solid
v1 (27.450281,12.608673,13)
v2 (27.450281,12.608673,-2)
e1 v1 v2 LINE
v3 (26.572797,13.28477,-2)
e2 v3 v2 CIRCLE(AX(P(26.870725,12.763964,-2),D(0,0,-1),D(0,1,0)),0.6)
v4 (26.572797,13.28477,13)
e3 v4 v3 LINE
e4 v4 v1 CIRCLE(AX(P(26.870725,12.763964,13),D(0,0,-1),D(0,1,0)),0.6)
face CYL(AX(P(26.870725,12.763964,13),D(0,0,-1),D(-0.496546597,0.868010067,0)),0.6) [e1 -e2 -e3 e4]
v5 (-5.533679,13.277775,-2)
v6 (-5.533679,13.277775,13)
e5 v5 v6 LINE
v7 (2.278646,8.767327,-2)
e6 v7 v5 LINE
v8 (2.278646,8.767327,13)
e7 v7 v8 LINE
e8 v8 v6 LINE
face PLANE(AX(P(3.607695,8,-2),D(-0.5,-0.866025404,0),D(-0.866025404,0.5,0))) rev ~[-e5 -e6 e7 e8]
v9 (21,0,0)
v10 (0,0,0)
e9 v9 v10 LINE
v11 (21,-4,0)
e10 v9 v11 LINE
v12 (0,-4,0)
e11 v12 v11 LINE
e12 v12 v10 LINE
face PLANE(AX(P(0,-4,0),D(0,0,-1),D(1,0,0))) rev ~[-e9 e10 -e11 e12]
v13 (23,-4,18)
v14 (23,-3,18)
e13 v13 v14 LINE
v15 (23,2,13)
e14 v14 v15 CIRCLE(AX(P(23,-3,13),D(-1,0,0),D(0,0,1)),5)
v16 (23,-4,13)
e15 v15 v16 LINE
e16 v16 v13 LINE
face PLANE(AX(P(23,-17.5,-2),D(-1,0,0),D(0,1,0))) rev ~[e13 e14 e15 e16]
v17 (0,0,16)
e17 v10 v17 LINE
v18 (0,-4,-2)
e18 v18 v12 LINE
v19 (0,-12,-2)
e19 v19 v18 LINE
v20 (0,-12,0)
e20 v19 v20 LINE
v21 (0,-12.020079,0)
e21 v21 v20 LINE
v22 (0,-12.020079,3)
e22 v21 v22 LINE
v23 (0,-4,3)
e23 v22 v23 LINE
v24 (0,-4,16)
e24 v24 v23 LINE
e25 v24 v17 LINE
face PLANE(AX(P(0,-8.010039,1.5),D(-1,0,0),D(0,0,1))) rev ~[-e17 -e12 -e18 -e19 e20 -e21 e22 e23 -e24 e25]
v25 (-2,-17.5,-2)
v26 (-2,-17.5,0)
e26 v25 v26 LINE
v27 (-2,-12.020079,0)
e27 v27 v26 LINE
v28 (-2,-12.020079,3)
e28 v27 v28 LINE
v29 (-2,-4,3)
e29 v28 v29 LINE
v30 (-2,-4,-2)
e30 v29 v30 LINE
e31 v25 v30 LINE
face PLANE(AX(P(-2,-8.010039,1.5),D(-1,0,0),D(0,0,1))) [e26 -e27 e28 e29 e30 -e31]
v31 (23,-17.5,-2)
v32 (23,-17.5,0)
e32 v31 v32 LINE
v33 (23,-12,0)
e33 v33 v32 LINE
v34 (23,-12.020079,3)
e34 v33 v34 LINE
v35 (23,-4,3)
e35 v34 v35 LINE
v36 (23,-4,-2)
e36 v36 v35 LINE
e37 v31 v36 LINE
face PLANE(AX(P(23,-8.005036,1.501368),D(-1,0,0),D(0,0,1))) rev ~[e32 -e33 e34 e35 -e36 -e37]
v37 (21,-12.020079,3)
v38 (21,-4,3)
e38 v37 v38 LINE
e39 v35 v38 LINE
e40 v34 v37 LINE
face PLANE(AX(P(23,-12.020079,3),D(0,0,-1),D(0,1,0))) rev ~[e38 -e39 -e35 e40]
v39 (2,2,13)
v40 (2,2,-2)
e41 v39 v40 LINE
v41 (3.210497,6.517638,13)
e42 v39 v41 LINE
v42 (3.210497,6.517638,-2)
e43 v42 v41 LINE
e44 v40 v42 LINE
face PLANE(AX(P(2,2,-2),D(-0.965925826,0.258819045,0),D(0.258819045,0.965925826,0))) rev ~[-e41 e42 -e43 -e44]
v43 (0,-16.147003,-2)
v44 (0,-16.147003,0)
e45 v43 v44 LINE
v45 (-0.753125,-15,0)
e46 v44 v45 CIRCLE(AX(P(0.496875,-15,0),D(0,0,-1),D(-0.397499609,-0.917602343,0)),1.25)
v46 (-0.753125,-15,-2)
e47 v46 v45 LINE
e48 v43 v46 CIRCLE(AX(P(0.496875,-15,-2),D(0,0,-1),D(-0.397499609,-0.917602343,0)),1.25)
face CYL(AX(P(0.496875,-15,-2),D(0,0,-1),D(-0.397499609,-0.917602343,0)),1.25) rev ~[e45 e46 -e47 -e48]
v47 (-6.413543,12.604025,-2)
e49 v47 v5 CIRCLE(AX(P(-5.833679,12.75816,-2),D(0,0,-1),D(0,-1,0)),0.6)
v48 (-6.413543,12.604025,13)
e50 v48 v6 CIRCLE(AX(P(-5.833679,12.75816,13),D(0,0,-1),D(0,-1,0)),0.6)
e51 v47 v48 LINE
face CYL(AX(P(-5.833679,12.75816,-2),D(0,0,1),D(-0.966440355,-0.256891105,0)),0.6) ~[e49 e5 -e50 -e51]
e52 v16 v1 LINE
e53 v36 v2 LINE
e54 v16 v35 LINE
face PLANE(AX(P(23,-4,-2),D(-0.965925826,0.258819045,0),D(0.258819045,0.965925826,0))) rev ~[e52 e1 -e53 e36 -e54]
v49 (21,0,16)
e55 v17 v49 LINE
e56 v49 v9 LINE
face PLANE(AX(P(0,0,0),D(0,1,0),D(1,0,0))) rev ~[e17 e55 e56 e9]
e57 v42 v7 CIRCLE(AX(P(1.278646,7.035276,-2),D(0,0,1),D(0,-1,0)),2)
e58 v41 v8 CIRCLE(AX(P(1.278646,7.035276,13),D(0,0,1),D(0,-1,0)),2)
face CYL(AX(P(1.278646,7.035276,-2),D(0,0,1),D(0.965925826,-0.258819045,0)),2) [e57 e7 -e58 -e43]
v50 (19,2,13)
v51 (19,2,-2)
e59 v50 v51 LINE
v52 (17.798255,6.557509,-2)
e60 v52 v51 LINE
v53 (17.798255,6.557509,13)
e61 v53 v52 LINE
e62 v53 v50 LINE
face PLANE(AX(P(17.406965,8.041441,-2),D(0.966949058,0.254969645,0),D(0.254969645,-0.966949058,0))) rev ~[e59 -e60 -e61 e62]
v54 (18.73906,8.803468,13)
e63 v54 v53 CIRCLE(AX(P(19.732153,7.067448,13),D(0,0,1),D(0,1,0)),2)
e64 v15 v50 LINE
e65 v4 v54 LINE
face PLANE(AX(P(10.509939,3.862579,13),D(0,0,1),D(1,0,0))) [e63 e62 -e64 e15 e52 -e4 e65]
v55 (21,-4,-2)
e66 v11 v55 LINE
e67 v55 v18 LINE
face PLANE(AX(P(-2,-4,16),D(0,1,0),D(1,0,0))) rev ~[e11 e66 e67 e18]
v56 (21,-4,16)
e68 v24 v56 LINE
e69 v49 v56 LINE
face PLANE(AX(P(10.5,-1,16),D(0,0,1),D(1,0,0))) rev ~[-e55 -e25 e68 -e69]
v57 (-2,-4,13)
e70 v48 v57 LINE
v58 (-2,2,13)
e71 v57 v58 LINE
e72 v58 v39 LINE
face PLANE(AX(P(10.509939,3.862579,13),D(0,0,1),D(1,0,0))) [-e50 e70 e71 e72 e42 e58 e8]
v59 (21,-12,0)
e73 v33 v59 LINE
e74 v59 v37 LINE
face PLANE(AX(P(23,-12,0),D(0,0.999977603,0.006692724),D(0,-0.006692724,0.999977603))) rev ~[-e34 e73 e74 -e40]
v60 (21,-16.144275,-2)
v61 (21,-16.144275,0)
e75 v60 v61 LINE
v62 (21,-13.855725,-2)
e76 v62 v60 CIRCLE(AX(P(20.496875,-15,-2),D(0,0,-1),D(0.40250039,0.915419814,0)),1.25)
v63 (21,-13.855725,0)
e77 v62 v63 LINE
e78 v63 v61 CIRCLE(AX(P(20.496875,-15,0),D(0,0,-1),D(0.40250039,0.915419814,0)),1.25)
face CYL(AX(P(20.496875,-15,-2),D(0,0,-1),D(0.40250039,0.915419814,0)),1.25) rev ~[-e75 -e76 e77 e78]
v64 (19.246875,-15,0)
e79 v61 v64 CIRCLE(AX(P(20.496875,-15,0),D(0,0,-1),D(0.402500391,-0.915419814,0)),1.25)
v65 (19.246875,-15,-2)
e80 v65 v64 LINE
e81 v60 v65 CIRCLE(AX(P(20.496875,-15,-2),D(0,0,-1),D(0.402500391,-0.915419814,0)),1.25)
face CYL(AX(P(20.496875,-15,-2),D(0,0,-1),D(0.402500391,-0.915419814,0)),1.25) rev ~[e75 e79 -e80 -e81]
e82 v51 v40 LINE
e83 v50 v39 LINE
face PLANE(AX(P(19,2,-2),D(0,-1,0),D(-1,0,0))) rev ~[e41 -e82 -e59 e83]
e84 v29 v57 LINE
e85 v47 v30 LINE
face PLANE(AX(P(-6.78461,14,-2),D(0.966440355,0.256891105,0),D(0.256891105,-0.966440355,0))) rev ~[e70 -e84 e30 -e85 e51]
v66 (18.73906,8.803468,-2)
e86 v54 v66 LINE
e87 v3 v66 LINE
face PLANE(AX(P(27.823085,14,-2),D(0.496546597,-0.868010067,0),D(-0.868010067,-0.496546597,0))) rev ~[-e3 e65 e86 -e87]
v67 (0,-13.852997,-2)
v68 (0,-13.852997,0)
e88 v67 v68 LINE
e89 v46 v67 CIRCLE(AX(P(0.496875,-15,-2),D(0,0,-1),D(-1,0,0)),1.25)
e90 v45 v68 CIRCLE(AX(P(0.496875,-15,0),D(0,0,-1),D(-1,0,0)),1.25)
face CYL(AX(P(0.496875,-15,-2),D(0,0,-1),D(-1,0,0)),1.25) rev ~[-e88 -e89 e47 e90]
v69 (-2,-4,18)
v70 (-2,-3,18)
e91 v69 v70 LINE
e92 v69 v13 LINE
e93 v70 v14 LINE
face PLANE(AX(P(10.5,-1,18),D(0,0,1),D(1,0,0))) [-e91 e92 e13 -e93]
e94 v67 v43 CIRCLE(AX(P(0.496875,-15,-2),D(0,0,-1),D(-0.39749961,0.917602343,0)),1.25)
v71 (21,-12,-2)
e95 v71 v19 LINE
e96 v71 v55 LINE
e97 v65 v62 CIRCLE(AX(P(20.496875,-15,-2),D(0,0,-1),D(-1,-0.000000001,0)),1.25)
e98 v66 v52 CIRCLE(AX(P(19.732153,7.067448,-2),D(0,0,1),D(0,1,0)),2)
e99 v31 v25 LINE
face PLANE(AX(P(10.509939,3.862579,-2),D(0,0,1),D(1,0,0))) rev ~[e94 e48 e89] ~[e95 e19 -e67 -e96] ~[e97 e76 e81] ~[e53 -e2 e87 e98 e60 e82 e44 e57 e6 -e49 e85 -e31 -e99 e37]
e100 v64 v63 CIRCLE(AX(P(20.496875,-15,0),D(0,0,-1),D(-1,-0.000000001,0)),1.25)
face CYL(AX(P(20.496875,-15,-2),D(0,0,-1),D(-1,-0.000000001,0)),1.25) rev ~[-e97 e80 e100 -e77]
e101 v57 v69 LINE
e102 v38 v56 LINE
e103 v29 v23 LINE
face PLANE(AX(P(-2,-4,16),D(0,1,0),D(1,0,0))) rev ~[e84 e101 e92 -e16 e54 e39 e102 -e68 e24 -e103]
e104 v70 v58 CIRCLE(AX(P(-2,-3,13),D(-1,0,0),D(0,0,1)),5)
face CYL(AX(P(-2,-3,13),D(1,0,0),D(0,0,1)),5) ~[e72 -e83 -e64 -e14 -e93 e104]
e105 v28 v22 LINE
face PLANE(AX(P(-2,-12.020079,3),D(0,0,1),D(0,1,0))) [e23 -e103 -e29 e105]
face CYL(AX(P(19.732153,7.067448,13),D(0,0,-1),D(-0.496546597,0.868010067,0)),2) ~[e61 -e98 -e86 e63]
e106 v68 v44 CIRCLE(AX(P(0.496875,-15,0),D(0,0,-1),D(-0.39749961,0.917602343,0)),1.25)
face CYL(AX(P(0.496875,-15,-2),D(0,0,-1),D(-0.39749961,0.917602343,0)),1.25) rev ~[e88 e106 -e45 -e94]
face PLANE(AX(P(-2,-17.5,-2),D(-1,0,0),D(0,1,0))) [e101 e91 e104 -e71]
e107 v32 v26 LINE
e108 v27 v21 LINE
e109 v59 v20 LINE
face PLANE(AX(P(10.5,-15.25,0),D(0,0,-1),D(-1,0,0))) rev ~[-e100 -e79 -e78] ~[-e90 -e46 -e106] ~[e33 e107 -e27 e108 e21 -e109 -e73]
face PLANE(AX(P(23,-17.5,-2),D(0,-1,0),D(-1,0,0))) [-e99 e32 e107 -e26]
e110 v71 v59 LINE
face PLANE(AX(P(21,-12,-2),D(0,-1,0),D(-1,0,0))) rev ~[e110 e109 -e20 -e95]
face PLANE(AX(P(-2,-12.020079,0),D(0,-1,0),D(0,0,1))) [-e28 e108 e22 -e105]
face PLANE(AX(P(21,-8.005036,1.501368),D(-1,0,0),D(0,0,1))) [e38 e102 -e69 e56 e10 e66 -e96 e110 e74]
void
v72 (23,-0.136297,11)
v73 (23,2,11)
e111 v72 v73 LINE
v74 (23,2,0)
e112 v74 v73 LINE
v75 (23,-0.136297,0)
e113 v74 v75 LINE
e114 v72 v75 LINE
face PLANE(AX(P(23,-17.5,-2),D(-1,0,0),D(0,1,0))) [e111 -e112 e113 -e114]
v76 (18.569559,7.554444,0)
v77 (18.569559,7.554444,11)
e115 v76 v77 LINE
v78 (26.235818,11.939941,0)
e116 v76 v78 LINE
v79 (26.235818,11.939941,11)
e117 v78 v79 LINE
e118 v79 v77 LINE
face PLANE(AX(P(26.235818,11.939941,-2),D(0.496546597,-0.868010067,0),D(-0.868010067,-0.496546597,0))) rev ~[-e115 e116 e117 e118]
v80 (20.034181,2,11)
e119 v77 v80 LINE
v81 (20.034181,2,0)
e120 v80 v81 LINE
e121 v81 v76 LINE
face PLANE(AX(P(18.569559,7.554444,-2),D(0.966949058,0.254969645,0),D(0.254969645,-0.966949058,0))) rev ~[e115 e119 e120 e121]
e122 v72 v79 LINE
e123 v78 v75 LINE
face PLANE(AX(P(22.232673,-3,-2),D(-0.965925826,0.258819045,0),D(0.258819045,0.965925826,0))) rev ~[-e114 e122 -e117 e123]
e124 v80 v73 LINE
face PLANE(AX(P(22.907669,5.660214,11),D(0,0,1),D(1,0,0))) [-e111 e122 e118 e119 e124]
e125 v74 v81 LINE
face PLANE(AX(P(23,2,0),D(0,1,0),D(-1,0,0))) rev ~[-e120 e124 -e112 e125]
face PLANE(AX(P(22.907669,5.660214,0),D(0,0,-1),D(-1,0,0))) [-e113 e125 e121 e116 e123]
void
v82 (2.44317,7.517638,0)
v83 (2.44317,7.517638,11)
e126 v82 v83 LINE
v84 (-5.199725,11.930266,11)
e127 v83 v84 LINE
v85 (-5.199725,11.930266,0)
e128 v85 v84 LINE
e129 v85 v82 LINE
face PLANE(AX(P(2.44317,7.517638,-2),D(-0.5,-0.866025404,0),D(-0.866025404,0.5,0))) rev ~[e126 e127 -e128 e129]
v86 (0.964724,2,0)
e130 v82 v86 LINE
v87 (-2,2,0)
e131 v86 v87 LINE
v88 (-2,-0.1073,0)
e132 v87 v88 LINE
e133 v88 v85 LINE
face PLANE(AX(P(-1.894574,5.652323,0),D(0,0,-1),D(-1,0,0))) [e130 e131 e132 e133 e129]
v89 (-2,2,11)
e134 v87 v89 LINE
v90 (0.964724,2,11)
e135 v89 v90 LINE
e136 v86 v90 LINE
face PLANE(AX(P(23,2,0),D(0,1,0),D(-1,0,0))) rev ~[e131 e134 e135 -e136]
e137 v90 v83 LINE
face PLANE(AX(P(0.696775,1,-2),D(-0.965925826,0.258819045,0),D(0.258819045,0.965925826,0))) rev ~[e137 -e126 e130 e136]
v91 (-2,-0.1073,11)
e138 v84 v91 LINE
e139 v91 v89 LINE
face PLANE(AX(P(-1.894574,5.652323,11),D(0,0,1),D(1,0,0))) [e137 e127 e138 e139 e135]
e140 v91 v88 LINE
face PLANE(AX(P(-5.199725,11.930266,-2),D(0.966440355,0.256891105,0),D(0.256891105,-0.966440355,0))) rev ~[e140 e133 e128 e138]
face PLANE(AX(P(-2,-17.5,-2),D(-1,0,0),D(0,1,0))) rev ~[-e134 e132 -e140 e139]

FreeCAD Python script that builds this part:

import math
import FreeCAD as App
import Part
import Sketcher

V = App.Vector
Q = App.Units.Quantity


def edges_at(feature, points):
    """Names of the edges that pass closest to the given points."""
    edges = feature.Shape.Edges
    near = lambda p: min(range(len(edges)), key=lambda i: edges[i].distToShape(Part.Vertex(*p))[0])
    return sorted({f"Edge{near(p) + 1}" for p in points})

doc = App.newDocument("Part")
body = doc.addObject("PartDesign::Body", "Body")

# Sketch on XY plane
sketch1 = doc.addObject("Sketcher::SketchObject", "Sketch")
body.addObject(sketch1)
sketch1.AttachmentSupport = (doc.XY_Plane, [""])
sketch1.MapMode = "FlatFace"
sketch1.addGeometry(Part.LineSegment(V(23, 2, 0), V(-2, 2, 0)), False)
sketch1.addGeometry(Part.LineSegment(V(-2, 2, 0), V(-2, -4, 0)), False)
sketch1.addGeometry(Part.LineSegment(V(-2, -4, 0), V(0, -4, 0)), False)
sketch1.addGeometry(Part.LineSegment(V(0, -4, 0), V(0, 0, 0)), False)
sketch1.addGeometry(Part.LineSegment(V(0, 0, 0), V(21, 0, 0)), False)
sketch1.addGeometry(Part.LineSegment(V(21, 0, 0), V(21, -4, 0)), False)
sketch1.addGeometry(Part.LineSegment(V(21, -4, 0), V(23, -4, 0)), False)
sketch1.addGeometry(Part.LineSegment(V(23, -4, 0), V(23, 2, 0)), False)
sketch1.addConstraint(Sketcher.Constraint("Coincident", 0, 2, 1, 1))
sketch1.addConstraint(Sketcher.Constraint("Coincident", 1, 2, 2, 1))
sketch1.addConstraint(Sketcher.Constraint("Coincident", 2, 2, 3, 1))
sketch1.addConstraint(Sketcher.Constraint("Coincident", 3, 2, 4, 1))
sketch1.addConstraint(Sketcher.Constraint("Coincident", 4, 2, 5, 1))
sketch1.addConstraint(Sketcher.Constraint("Coincident", 5, 2, 6, 1))
sketch1.addConstraint(Sketcher.Constraint("Coincident", 6, 2, 7, 1))
sketch1.addConstraint(Sketcher.Constraint("Coincident", 7, 2, 0, 1))
sketch1.addConstraint(Sketcher.Constraint("Horizontal", 0))
sketch1.addConstraint(Sketcher.Constraint("Vertical", 1))
sketch1.addConstraint(Sketcher.Constraint("Horizontal", 2))
sketch1.addConstraint(Sketcher.Constraint("Vertical", 3))
sketch1.addConstraint(Sketcher.Constraint("Horizontal", 4))
sketch1.addConstraint(Sketcher.Constraint("Vertical", 5))
sketch1.addConstraint(Sketcher.Constraint("Horizontal", 6))
sketch1.addConstraint(Sketcher.Constraint("Vertical", 7))
sketch1.addConstraint(Sketcher.Constraint("Coincident", 3, 2, -1, 1))
sketch1.addConstraint(Sketcher.Constraint("Horizontal", 2, 2, 5, 2))
sketch1.addConstraint(Sketcher.Constraint("Equal", 2, 6))
sketch1.addConstraint(Sketcher.Constraint("DistanceX", 0, 2, 0, 1, 25.0))
sketch1.addConstraint(Sketcher.Constraint("DistanceX", 2, 1, 2, 2, 2.0))
sketch1.addConstraint(Sketcher.Constraint("DistanceY", 1, 2, 1, 1, 6.0))
sketch1.addConstraint(Sketcher.Constraint("DistanceY", 3, 1, 3, 2, 4.0))
pad1 = doc.addObject("PartDesign::Pad", "Pad")
body.addObject(pad1)
pad1.Profile = sketch1
pad1.Length = 16

# Sketch on XY plane
sketch2 = doc.addObject("Sketcher::SketchObject", "Sketch001")
body.addObject(sketch2)
sketch2.AttachmentSupport = (doc.XY_Plane, [""])
sketch2.MapMode = "FlatFace"
sketch2.AttachmentOffset = App.Placement(V(0, 0, 16), App.Rotation())
sketch2.addGeometry(Part.LineSegment(V(-2, 2, 0), V(-2, -4, 0)), False)
sketch2.addGeometry(Part.LineSegment(V(-2, -4, 0), V(23, -4, 0)), False)
sketch2.addGeometry(Part.LineSegment(V(23, -4, 0), V(23, 2, 0)), False)
sketch2.addGeometry(Part.LineSegment(V(23, 2, 0), V(-2, 2, 0)), False)
sketch2.addConstraint(Sketcher.Constraint("Coincident", 0, 2, 1, 1))
sketch2.addConstraint(Sketcher.Constraint("Coincident", 1, 2, 2, 1))
sketch2.addConstraint(Sketcher.Constraint("Coincident", 2, 2, 3, 1))
sketch2.addConstraint(Sketcher.Constraint("Coincident", 3, 2, 0, 1))
sketch2.addConstraint(Sketcher.Constraint("Vertical", 0))
sketch2.addConstraint(Sketcher.Constraint("Horizontal", 1))
sketch2.addConstraint(Sketcher.Constraint("Vertical", 2))
sketch2.addConstraint(Sketcher.Constraint("Horizontal", 3))
sketch2.addConstraint(Sketcher.Constraint("DistanceX", 1, 1, 1, 2, 25.0))
sketch2.addConstraint(Sketcher.Constraint("DistanceY", 0, 2, 0, 1, 6.0))
sketch2.addConstraint(Sketcher.Constraint("DistanceX", 0, 2, -1, 1, 2.0))
sketch2.addConstraint(Sketcher.Constraint("DistanceY", 0, 2, -1, 1, 4.0))
pad2 = doc.addObject("PartDesign::Pad", "Pad001")
body.addObject(pad2)
pad2.Profile = sketch2
pad2.Length = 2

# Sketch on XY plane
sketch3 = doc.addObject("Sketcher::SketchObject", "Sketch002")
body.addObject(sketch3)
sketch3.AttachmentSupport = (doc.XY_Plane, [""])
sketch3.MapMode = "FlatFace"
sketch3.addGeometry(Part.LineSegment(V(23, 2, 0), V(23, -13, 0)), False)
sketch3.addGeometry(Part.LineSegment(V(23, -13, 0), V(-2, -13, 0)), False)
sketch3.addGeometry(Part.LineSegment(V(-2, -13, 0), V(-2, 2, 0)), False)
sketch3.addGeometry(Part.LineSegment(V(-2, 2, 0), V(23, 2, 0)), False)
sketch3.addConstraint(Sketcher.Constraint("Coincident", 0, 2, 1, 1))
sketch3.addConstraint(Sketcher.Constraint("Coincident", 1, 2, 2, 1))
sketch3.addConstraint(Sketcher.Constraint("Coincident", 2, 2, 3, 1))
sketch3.addConstraint(Sketcher.Constraint("Coincident", 3, 2, 0, 1))
sketch3.addConstraint(Sketcher.Constraint("Vertical", 0))
sketch3.addConstraint(Sketcher.Constraint("Horizontal", 1))
sketch3.addConstraint(Sketcher.Constraint("Vertical", 2))
sketch3.addConstraint(Sketcher.Constraint("Horizontal", 3))
sketch3.addConstraint(Sketcher.Constraint("DistanceX", 1, 2, 1, 1, 25.0))
sketch3.addConstraint(Sketcher.Constraint("DistanceY", 0, 2, 0, 1, 15.0))
sketch3.addConstraint(Sketcher.Constraint("DistanceX", -1, 1, 0, 2, 23.0))
sketch3.addConstraint(Sketcher.Constraint("DistanceY", 0, 2, -1, 1, 13.0))
pad3 = doc.addObject("PartDesign::Pad", "Pad002")
body.addObject(pad3)
pad3.Profile = sketch3
pad3.Length = 2
pad3.Reversed = True

# Sketch on XY plane
sketch4 = doc.addObject("Sketcher::SketchObject", "Sketch003")
body.addObject(sketch4)
sketch4.AttachmentSupport = (doc.XY_Plane, [""])
sketch4.MapMode = "FlatFace"
sketch4.AttachmentOffset = App.Placement(V(0, 0, -2), App.Rotation())
sketch4.addGeometry(Part.LineSegment(V(21, -4, 0), V(21, -12, 0)), False)
sketch4.addGeometry(Part.LineSegment(V(21, -12, 0), V(0, -12, 0)), False)
sketch4.addGeometry(Part.LineSegment(V(0, -12, 0), V(0, -4, 0)), False)
sketch4.addGeometry(Part.LineSegment(V(0, -4, 0), V(21, -4, 0)), False)
sketch4.addConstraint(Sketcher.Constraint("Coincident", 0, 2, 1, 1))
sketch4.addConstraint(Sketcher.Constraint("Coincident", 1, 2, 2, 1))
sketch4.addConstraint(Sketcher.Constraint("Coincident", 2, 2, 3, 1))
sketch4.addConstraint(Sketcher.Constraint("Coincident", 3, 2, 0, 1))
sketch4.addConstraint(Sketcher.Constraint("Vertical", 0))
sketch4.addConstraint(Sketcher.Constraint("Horizontal", 1))
sketch4.addConstraint(Sketcher.Constraint("Vertical", 2))
sketch4.addConstraint(Sketcher.Constraint("Horizontal", 3))
sketch4.addConstraint(Sketcher.Constraint("PointOnObject", 1, 2, -2))
sketch4.addConstraint(Sketcher.Constraint("DistanceX", 1, 2, 1, 1, 21.0))
sketch4.addConstraint(Sketcher.Constraint("DistanceY", 0, 2, 0, 1, 8.0))
sketch4.addConstraint(Sketcher.Constraint("DistanceY", 0, 2, -1, 1, 12.0))
pocket1 = doc.addObject("PartDesign::Pocket", "Pocket")
body.addObject(pocket1)
pocket1.Profile = sketch4
pocket1.Length = 2
pocket1.Reversed = True

# Sketch on XY plane
sketch5 = doc.addObject("Sketcher::SketchObject", "Sketch004")
body.addObject(sketch5)
sketch5.AttachmentSupport = (doc.XY_Plane, [""])
sketch5.MapMode = "FlatFace"
sketch5.AttachmentOffset = App.Placement(V(0, 0, -2), App.Rotation())
sketch5.addGeometry(Part.LineSegment(V(23, -13, 0), V(23, -17.5, 0)), False)
sketch5.addGeometry(Part.LineSegment(V(23, -17.5, 0), V(-2, -17.5, 0)), False)
sketch5.addGeometry(Part.LineSegment(V(-2, -17.5, 0), V(-2, -13, 0)), False)
sketch5.addGeometry(Part.LineSegment(V(-2, -13, 0), V(23, -13, 0)), False)
sketch5.addConstraint(Sketcher.Constraint("Coincident", 0, 2, 1, 1))
sketch5.addConstraint(Sketcher.Constraint("Coincident", 1, 2, 2, 1))
sketch5.addConstraint(Sketcher.Constraint("Coincident", 2, 2, 3, 1))
sketch5.addConstraint(Sketcher.Constraint("Coincident", 3, 2, 0, 1))
sketch5.addConstraint(Sketcher.Constraint("Vertical", 0))
sketch5.addConstraint(Sketcher.Constraint("Horizontal", 1))
sketch5.addConstraint(Sketcher.Constraint("Vertical", 2))
sketch5.addConstraint(Sketcher.Constraint("Horizontal", 3))
sketch5.addConstraint(Sketcher.Constraint("DistanceX", 1, 2, 1, 1, 25.0))
sketch5.addConstraint(Sketcher.Constraint("DistanceY", 0, 2, 0, 1, 4.5))
sketch5.addConstraint(Sketcher.Constraint("DistanceX", -1, 1, 0, 2, 23.0))
sketch5.addConstraint(Sketcher.Constraint("DistanceY", 2, 2, -1, 1, 13.0))
pad4 = doc.addObject("PartDesign::Pad", "Pad003")
body.addObject(pad4)
pad4.Profile = sketch5
pad4.Length = 2

# Sketch on XY plane
sketch6 = doc.addObject("Sketcher::SketchObject", "Sketch005")
body.addObject(sketch6)
sketch6.AttachmentSupport = (doc.XY_Plane, [""])
sketch6.MapMode = "FlatFace"
sketch6.AttachmentOffset = App.Placement(V(0, 0, -2), App.Rotation())
sketch6.addGeometry(Part.ArcOfCircle(Part.Circle(V(20.5, -15, 0), V(0, 0, 1), 1.2), math.radians(66), math.radians(180)), False)
sketch6.addGeometry(Part.ArcOfCircle(Part.Circle(V(20.5, -15, 0), V(0, 0, 1), 1.2), math.radians(-66), math.radians(66)), False)
sketch6.addGeometry(Part.ArcOfCircle(Part.Circle(V(20.5, -15, 0), V(0, 0, 1), 1.2), math.radians(180), math.radians(294)), False)
sketch6.addGeometry(Part.ArcOfCircle(Part.Circle(V(0.5, -15, 0), V(0, 0, 1), 1.2), math.radians(113), math.radians(180)), False)
sketch6.addGeometry(Part.ArcOfCircle(Part.Circle(V(0.5, -15, 0), V(0, 0, 1), 1.2), math.radians(-113), math.radians(113)), False)
sketch6.addGeometry(Part.ArcOfCircle(Part.Circle(V(0.5, -15, 0), V(0, 0, 1), 1.2), math.radians(180), math.radians(247)), False)
sketch6.addConstraint(Sketcher.Constraint("Tangent", 0, 1, 1, 2))
sketch6.addConstraint(Sketcher.Constraint("Tangent", 1, 1, 2, 2))
sketch6.addConstraint(Sketcher.Constraint("Tangent", 2, 1, 0, 2))
sketch6.addConstraint(Sketcher.Constraint("Tangent", 3, 1, 4, 2))
sketch6.addConstraint(Sketcher.Constraint("Tangent", 4, 1, 5, 2))
sketch6.addConstraint(Sketcher.Constraint("Tangent", 5, 1, 3, 2))
sketch6.addConstraint(Sketcher.Constraint("Equal", 2, 3))
sketch6.addConstraint(Sketcher.Constraint("PointOnObject", 3, 1, -2))
sketch6.addConstraint(Sketcher.Constraint("PointOnObject", 4, 1, -2))
sketch6.addConstraint(Sketcher.Constraint("Horizontal", 2, 3, 3, 3))
sketch6.addConstraint(Sketcher.Constraint("Horizontal", 5, 3, 2, 1))
sketch6.addConstraint(Sketcher.Constraint("Horizontal", 2, 1, 5, 1))
sketch6.addConstraint(Sketcher.Constraint("Vertical", 0, 1, 1, 1))
sketch6.addConstraint(Sketcher.Constraint("Radius", 0, 1.25))
sketch6.addConstraint(Sketcher.Constraint("DistanceY", 0, 3, -1, 1, 15.0))
sketch6.addConstraint(Sketcher.Constraint("DistanceX", -1, 1, 0, 1, 21.0))
sketch6.addConstraint(Sketcher.Constraint("DistanceX", 3, 3, 0, 3, 20.0))
sketch6.addConstraint(Sketcher.Constraint("DistanceY", 1, 1, 0, 1, 2.28855))
pocket2 = doc.addObject("PartDesign::Pocket", "Pocket001")
body.addObject(pocket2)
pocket2.Profile = sketch6
pocket2.Length = 3
pocket2.Reversed = True
doc.recompute()

fillet = doc.addObject("PartDesign::Fillet", "Fillet")
body.addObject(fillet)
fillet.Base = (pocket2, edges_at(pocket2, [(10.5, 2, 18)]))
fillet.Radius = 5

# Sketch on XY plane
sketch7 = doc.addObject("Sketcher::SketchObject", "Sketch006")
body.addObject(sketch7)
sketch7.AttachmentSupport = (doc.XY_Plane, [""])
sketch7.MapMode = "FlatFace"
sketch7.AttachmentOffset = App.Placement(V(0, 0, -2), App.Rotation())
sketch7.addGeometry(Part.LineSegment(V(23, -4, 0), V(-2, -4, 0)), False)
sketch7.addGeometry(Part.LineSegment(V(-2, -4, 0), V(-7, 14, 0)), False)
sketch7.addGeometry(Part.LineSegment(V(-7, 14, 0), V(4, 8, 0)), False)
sketch7.addGeometry(Part.LineSegment(V(4, 8, 0), V(2, 2, 0)), False)
sketch7.addGeometry(Part.LineSegment(V(2, 2, 0), V(19, 2, 0)), False)
sketch7.addGeometry(Part.LineSegment(V(19, 2, 0), V(17, 8, 0)), False)
sketch7.addGeometry(Part.LineSegment(V(17, 8, 0), V(28, 14, 0)), False)
sketch7.addGeometry(Part.LineSegment(V(28, 14, 0), V(23, -4, 0)), False)
sketch7.addGeometry(Part.LineSegment(V(22, -3, 0), V(26, 12, 0)), False)
sketch7.addGeometry(Part.LineSegment(V(26, 12, 0), V(19, 8, 0)), False)
sketch7.addGeometry(Part.LineSegment(V(19, 8, 0), V(20, 1, 0)), False)
sketch7.addGeometry(Part.LineSegment(V(20, 1, 0), V(1, 1, 0)), False)
sketch7.addGeometry(Part.LineSegment(V(1, 1, 0), V(2, 8, 0)), False)
sketch7.addGeometry(Part.LineSegment(V(2, 8, 0), V(-5, 12, 0)), False)
sketch7.addGeometry(Part.LineSegment(V(-5, 12, 0), V(-1, -3, 0)), False)
sketch7.addGeometry(Part.LineSegment(V(-1, -3, 0), V(22, -3, 0)), False)
sketch7.addConstraint(Sketcher.Constraint("Coincident", 0, 2, 1, 1))
sketch7.addConstraint(Sketcher.Constraint("Coincident", 1, 2, 2, 1))
sketch7.addConstraint(Sketcher.Constraint("Coincident", 2, 2, 3, 1))
sketch7.addConstraint(Sketcher.Constraint("Coincident", 3, 2, 4, 1))
sketch7.addConstraint(Sketcher.Constraint("Coincident", 4, 2, 5, 1))
sketch7.addConstraint(Sketcher.Constraint("Coincident", 5, 2, 6, 1))
sketch7.addConstraint(Sketcher.Constraint("Coincident", 6, 2, 7, 1))
sketch7.addConstraint(Sketcher.Constraint("Coincident", 7, 2, 0, 1))
sketch7.addConstraint(Sketcher.Constraint("Coincident", 8, 2, 9, 1))
sketch7.addConstraint(Sketcher.Constraint("Coincident", 9, 2, 10, 1))
sketch7.addConstraint(Sketcher.Constraint("Coincident", 10, 2, 11, 1))
sketch7.addConstraint(Sketcher.Constraint("Coincident", 11, 2, 12, 1))
sketch7.addConstraint(Sketcher.Constraint("Coincident", 12, 2, 13, 1))
sketch7.addConstraint(Sketcher.Constraint("Coincident", 13, 2, 14, 1))
sketch7.addConstraint(Sketcher.Constraint("Coincident", 14, 2, 15, 1))
sketch7.addConstraint(Sketcher.Constraint("Coincident", 15, 2, 8, 1))
sketch7.addConstraint(Sketcher.Constraint("Horizontal", 0))
sketch7.addConstraint(Sketcher.Constraint("Horizontal", 4))
sketch7.addConstraint(Sketcher.Constraint("Horizontal", 11))
sketch7.addConstraint(Sketcher.Constraint("Horizontal", 15))
sketch7.addConstraint(Sketcher.Constraint("Parallel", 3, 7))
sketch7.addConstraint(Sketcher.Constraint("Parallel", 7, 8))
sketch7.addConstraint(Sketcher.Constraint("Parallel", 6, 9))
sketch7.addConstraint(Sketcher.Constraint("Parallel", 5, 10))
sketch7.addConstraint(Sketcher.Constraint("Parallel", 8, 12))
sketch7.addConstraint(Sketcher.Constraint("Parallel", 2, 13))
sketch7.addConstraint(Sketcher.Constraint("Parallel", 1, 14))
sketch7.addConstraint(Sketcher.Constraint("Horizontal", 1, 2, 6, 2))
sketch7.addConstraint(Sketcher.Constraint("Equal", 2, 6))
sketch7.addConstraint(Sketcher.Constraint("DistanceX", 0, 2, 0, 1, 25.0))
sketch7.addConstraint(Sketcher.Constraint("DistanceX", 4, 1, 4, 2, 17.0))
sketch7.addConstraint(Sketcher.Constraint("Angle", 2, Q("-30 deg")))
sketch7.addConstraint(Sketcher.Constraint("Angle", 3, Q("-105 deg")))
sketch7.addConstraint(Sketcher.Constraint("Distance", 2, 12.0))
sketch7.addConstraint(Sketcher.Constraint("DistanceX", 0, 2, -1, 1, 2.0))
sketch7.addConstraint(Sketcher.Constraint("DistanceY", 0, 2, -1, 1, 4.0))
sketch7.addConstraint(Sketcher.Constraint("DistanceY", -1, 1, 1, 2, 14.0))
sketch7.addConstraint(Sketcher.Constraint("DistanceX", -1, 1, 3, 2, 2.0))
sketch7.addConstraint(Sketcher.Constraint("DistanceY", -1, 1, 3, 2, 2.0))
sketch7.addConstraint(Sketcher.Constraint("DistanceY", -1, 1, 10, 2, 1.0))
sketch7.addConstraint(Sketcher.Constraint("DistanceY", 14, 2, -1, 1, 3.0))
sketch7.addConstraint(Sketcher.Constraint("DistanceX", 11, 2, 11, 1, 19.601091))
sketch7.addConstraint(Sketcher.Constraint("DistanceX", 15, 1, 15, 2, 23.46376))
sketch7.addConstraint(Sketcher.Constraint("DistanceY", 5, 2, 8, 2, 3.8985))
sketch7.addConstraint(Sketcher.Constraint("DistanceX", 5, 2, 10, 2, 2.890901))
sketch7.addConstraint(Sketcher.Constraint("DistanceX", 13, 2, 11, 2, 5.8965))
sketch7.addConstraint(Sketcher.Constraint("Distance", 5, 6.247941))
sketch7.addConstraint(Sketcher.Constraint("Distance", 10, 6.77848))
pad5 = doc.addObject("PartDesign::Pad", "Pad004")
body.addObject(pad5)
pad5.Profile = sketch7
pad5.Length = 15

# Sketch on XY plane
sketch8 = doc.addObject("Sketcher::SketchObject", "Sketch007")
body.addObject(sketch8)
sketch8.AttachmentSupport = (doc.XY_Plane, [""])
sketch8.MapMode = "FlatFace"
sketch8.AttachmentOffset = App.Placement(V(0, 0, -2), App.Rotation())
sketch8.addGeometry(Part.LineSegment(V(28, 14, 0), V(23, -4, 0)), False)
sketch8.addGeometry(Part.LineSegment(V(23, -4, 0), V(19, 2, 0)), False)
sketch8.addGeometry(Part.LineSegment(V(19, 2, 0), V(17, 8, 0)), False)
sketch8.addGeometry(Part.LineSegment(V(17, 8, 0), V(28, 14, 0)), False)
sketch8.addGeometry(Part.LineSegment(V(2, 2, 0), V(-2, -4, 0)), False)
sketch8.addGeometry(Part.LineSegment(V(-2, -4, 0), V(-7, 14, 0)), False)
sketch8.addGeometry(Part.LineSegment(V(-7, 14, 0), V(4, 8, 0)), False)
sketch8.addGeometry(Part.LineSegment(V(4, 8, 0), V(2, 2, 0)), False)
sketch8.addConstraint(Sketcher.Constraint("Coincident", 0, 2, 1, 1))
sketch8.addConstraint(Sketcher.Constraint("Coincident", 1, 2, 2, 1))
sketch8.addConstraint(Sketcher.Constraint("Coincident", 2, 2, 3, 1))
sketch8.addConstraint(Sketcher.Constraint("Coincident", 3, 2, 0, 1))
sketch8.addConstraint(Sketcher.Constraint("Coincident", 4, 2, 5, 1))
sketch8.addConstraint(Sketcher.Constraint("Coincident", 5, 2, 6, 1))
sketch8.addConstraint(Sketcher.Constraint("Coincident", 6, 2, 7, 1))
sketch8.addConstraint(Sketcher.Constraint("Coincident", 7, 2, 4, 1))
sketch8.addConstraint(Sketcher.Constraint("Parallel", 0, 7))
sketch8.addConstraint(Sketcher.Constraint("Horizontal", 0, 2, 4, 2))
sketch8.addConstraint(Sketcher.Constraint("Horizontal", 3, 2, 5, 2))
sketch8.addConstraint(Sketcher.Constraint("Horizontal", 1, 2, 7, 2))
sketch8.addConstraint(Sketcher.Constraint("Equal", 1, 4))
sketch8.addConstraint(Sketcher.Constraint("Equal", 3, 6))
sketch8.addConstraint(Sketcher.Constraint("Angle", 0, Q("-105 deg")))
sketch8.addConstraint(Sketcher.Constraint("Angle", 6, Q("-30 deg")))
sketch8.addConstraint(Sketcher.Constraint("Distance", 3, 12.0))
sketch8.addConstraint(Sketcher.Constraint("DistanceX", -1, 1, 0, 2, 23.0))
sketch8.addConstraint(Sketcher.Constraint("DistanceY", 0, 2, -1, 1, 4.0))
sketch8.addConstraint(Sketcher.Constraint("DistanceX", -1, 1, 1, 2, 19.0))
sketch8.addConstraint(Sketcher.Constraint("DistanceY", -1, 1, 1, 2, 2.0))
sketch8.addConstraint(Sketcher.Constraint("DistanceY", -1, 1, 3, 2, 14.0))
sketch8.addConstraint(Sketcher.Constraint("DistanceX", 4, 2, -1, 1, 2.0))
sketch8.addConstraint(Sketcher.Constraint("Distance", 2, 6.247941))
pad6 = doc.addObject("PartDesign::Pad", "Pad005")
body.addObject(pad6)
pad6.Profile = sketch8
pad6.Length = 2

# Sketch on XY plane
sketch9 = doc.addObject("Sketcher::SketchObject", "Sketch008")
body.addObject(sketch9)
sketch9.AttachmentSupport = (doc.XY_Plane, [""])
sketch9.MapMode = "FlatFace"
sketch9.AttachmentOffset = App.Placement(V(0, 0, 13), App.Rotation())
sketch9.addGeometry(Part.LineSegment(V(-7, 14, 0), V(-2, -4, 0)), False)
sketch9.addGeometry(Part.LineSegment(V(-2, -4, 0), V(2, 2, 0)), False)
sketch9.addGeometry(Part.LineSegment(V(2, 2, 0), V(4, 8, 0)), False)
sketch9.addGeometry(Part.LineSegment(V(4, 8, 0), V(-7, 14, 0)), False)
sketch9.addGeometry(Part.LineSegment(V(19, 2, 0), V(23, -4, 0)), False)
sketch9.addGeometry(Part.LineSegment(V(23, -4, 0), V(28, 14, 0)), False)
sketch9.addGeometry(Part.LineSegment(V(28, 14, 0), V(17, 8, 0)), False)
sketch9.addGeometry(Part.LineSegment(V(17, 8, 0), V(19, 2, 0)), False)
sketch9.addConstraint(Sketcher.Constraint("Coincident", 0, 2, 1, 1))
sketch9.addConstraint(Sketcher.Constraint("Coincident", 1, 2, 2, 1))
sketch9.addConstraint(Sketcher.Constraint("Coincident", 2, 2, 3, 1))
sketch9.addConstraint(Sketcher.Constraint("Coincident", 3, 2, 0, 1))
sketch9.addConstraint(Sketcher.Constraint("Coincident", 4, 2, 5, 1))
sketch9.addConstraint(Sketcher.Constraint("Coincident", 5, 2, 6, 1))
sketch9.addConstraint(Sketcher.Constraint("Coincident", 6, 2, 7, 1))
sketch9.addConstraint(Sketcher.Constraint("Coincident", 7, 2, 4, 1))
sketch9.addConstraint(Sketcher.Constraint("Parallel", 2, 5))
sketch9.addConstraint(Sketcher.Constraint("Horizontal", 0, 2, 4, 2))
sketch9.addConstraint(Sketcher.Constraint("Horizontal", 3, 2, 5, 2))
sketch9.addConstraint(Sketcher.Constraint("Horizontal", 1, 2, 7, 2))
sketch9.addConstraint(Sketcher.Constraint("Equal", 1, 4))
sketch9.addConstraint(Sketcher.Constraint("Equal", 3, 6))
sketch9.addConstraint(Sketcher.Constraint("Angle", 2, Q("75 deg")))
sketch9.addConstraint(Sketcher.Constraint("Angle", 3, Q("150 deg")))
sketch9.addConstraint(Sketcher.Constraint("Distance", 3, 12.0))
sketch9.addConstraint(Sketcher.Constraint("DistanceX", 0, 2, -1, 1, 2.0))
sketch9.addConstraint(Sketcher.Constraint("DistanceY", 0, 2, -1, 1, 4.0))
sketch9.addConstraint(Sketcher.Constraint("DistanceX", -1, 1, 1, 2, 2.0))
sketch9.addConstraint(Sketcher.Constraint("DistanceY", -1, 1, 1, 2, 2.0))
sketch9.addConstraint(Sketcher.Constraint("DistanceY", -1, 1, 2, 2, 8.0))
sketch9.addConstraint(Sketcher.Constraint("DistanceX", -1, 1, 4, 2, 23.0))
sketch9.addConstraint(Sketcher.Constraint("Distance", 7, 6.247941))
pad7 = doc.addObject("PartDesign::Pad", "Pad006")
body.addObject(pad7)
pad7.Profile = sketch9
pad7.Length = 2
pad7.Reversed = True
doc.recompute()

fillet2 = doc.addObject("PartDesign::Fillet", "Fillet001")
body.addObject(fillet2)
fillet2.Base = (pad7, edges_at(pad7, [(17.407, 8.041, 5.5), (3.608, 8, 5.5)]))
fillet2.Radius = 2
doc.recompute()

fillet3 = doc.addObject("PartDesign::Fillet", "Fillet002")
body.addObject(fillet3)
fillet3.Base = (fillet2, edges_at(fillet2, [(27.823, 14, 5.5), (-6.785, 14, 5.5)]))
fillet3.Radius = 0.6

# Sketch on YZ plane
sketch10 = doc.addObject("Sketcher::SketchObject", "Sketch009")
body.addObject(sketch10)
sketch10.AttachmentSupport = (doc.YZ_Plane, [""])
sketch10.MapMode = "FlatFace"
sketch10.AttachmentOffset = App.Placement(V(0, 0, -2), App.Rotation())
sketch10.addGeometry(Part.LineSegment(V(-4, 0, 0), V(-12, 0, 0)), False)
sketch10.addGeometry(Part.LineSegment(V(-12, 0, 0), V(-12, 3, 0)), False)
sketch10.addGeometry(Part.LineSegment(V(-12, 3, 0), V(-4, 3, 0)), False)
sketch10.addGeometry(Part.LineSegment(V(-4, 3, 0), V(-4, 0, 0)), False)
sketch10.addConstraint(Sketcher.Constraint("Coincident", 0, 2, 1, 1))
sketch10.addConstraint(Sketcher.Constraint("Coincident", 1, 2, 2, 1))
sketch10.addConstraint(Sketcher.Constraint("Coincident", 2, 2, 3, 1))
sketch10.addConstraint(Sketcher.Constraint("Coincident", 3, 2, 0, 1))
sketch10.addConstraint(Sketcher.Constraint("Horizontal", 0))
sketch10.addConstraint(Sketcher.Constraint("Vertical", 1))
sketch10.addConstraint(Sketcher.Constraint("Horizontal", 2))
sketch10.addConstraint(Sketcher.Constraint("Vertical", 3))
sketch10.addConstraint(Sketcher.Constraint("PointOnObject", 0, 2, -1))
sketch10.addConstraint(Sketcher.Constraint("DistanceY", 1, 1, 1, 2, 3.0))
sketch10.addConstraint(Sketcher.Constraint("DistanceX", 2, 2, -1, 1, 4.0))
sketch10.addConstraint(Sketcher.Constraint("DistanceX", 0, 2, 0, 1, 8.020079))
pad8 = doc.addObject("PartDesign::Pad", "Pad007")
body.addObject(pad8)
pad8.Profile = sketch10
pad8.Length = 2

# Sketch on YZ plane
sketch11 = doc.addObject("Sketcher::SketchObject", "Sketch010")
body.addObject(sketch11)
sketch11.AttachmentSupport = (doc.YZ_Plane, [""])
sketch11.MapMode = "FlatFace"
sketch11.AttachmentOffset = App.Placement(V(0, 0, 23), App.Rotation())
sketch11.addGeometry(Part.LineSegment(V(-12, 3, 0), V(-12, 0, 0)), False)
sketch11.addGeometry(Part.LineSegment(V(-12, 0, 0), V(-4, 0, 0)), False)
sketch11.addGeometry(Part.LineSegment(V(-4, 0, 0), V(-4, 3, 0)), False)
sketch11.addGeometry(Part.LineSegment(V(-4, 3, 0), V(-12, 3, 0)), False)
sketch11.addConstraint(Sketcher.Constraint("Coincident", 0, 2, 1, 1))
sketch11.addConstraint(Sketcher.Constraint("Coincident", 1, 2, 2, 1))
sketch11.addConstraint(Sketcher.Constraint("Coincident", 2, 2, 3, 1))
sketch11.addConstraint(Sketcher.Constraint("Coincident", 3, 2, 0, 1))
sketch11.addConstraint(Sketcher.Constraint("Horizontal", 1))
sketch11.addConstraint(Sketcher.Constraint("Vertical", 2))
sketch11.addConstraint(Sketcher.Constraint("Horizontal", 3))
sketch11.addConstraint(Sketcher.Constraint("PointOnObject", 0, 2, -1))
sketch11.addConstraint(Sketcher.Constraint("DistanceX", 1, 1, 1, 2, 8.0))
sketch11.addConstraint(Sketcher.Constraint("DistanceY", 2, 1, 2, 2, 3.0))
sketch11.addConstraint(Sketcher.Constraint("DistanceX", 0, 2, -1, 1, 12.0))
sketch11.addConstraint(Sketcher.Constraint("DistanceX", 3, 2, 3, 1, 8.020079))
pad9 = doc.addObject("PartDesign::Pad", "Pad008")
body.addObject(pad9)
pad9.Profile = sketch11
pad9.Length = 2
pad9.Reversed = True

# Sketch on XZ plane
sketch12 = doc.addObject("Sketcher::SketchObject", "Sketch011")
body.addObject(sketch12)
sketch12.AttachmentSupport = (doc.XZ_Plane, [""])
sketch12.MapMode = "FlatFace"
sketch12.AttachmentOffset = App.Placement(V(0, 0, 4), App.Rotation())
sketch12.addGeometry(Part.LineSegment(V(0, 13, 0), V(0, 0, 0)), False)
sketch12.addGeometry(Part.LineSegment(V(0, 0, 0), V(21, 0, 0)), False)
sketch12.addGeometry(Part.LineSegment(V(21, 0, 0), V(21, 13, 0)), False)
sketch12.addGeometry(Part.LineSegment(V(21, 13, 0), V(0, 13, 0)), False)
sketch12.addConstraint(Sketcher.Constraint("Coincident", 0, 2, 1, 1))
sketch12.addConstraint(Sketcher.Constraint("Coincident", 1, 2, 2, 1))
sketch12.addConstraint(Sketcher.Constraint("Coincident", 2, 2, 3, 1))
sketch12.addConstraint(Sketcher.Constraint("Coincident", 3, 2, 0, 1))
sketch12.addConstraint(Sketcher.Constraint("Vertical", 0))
sketch12.addConstraint(Sketcher.Constraint("Horizontal", 1))
sketch12.addConstraint(Sketcher.Constraint("Vertical", 2))
sketch12.addConstraint(Sketcher.Constraint("Horizontal", 3))
sketch12.addConstraint(Sketcher.Constraint("Coincident", 0, 2, -1, 1))
sketch12.addConstraint(Sketcher.Constraint("DistanceX", 1, 1, 1, 2, 21.0))
sketch12.addConstraint(Sketcher.Constraint("DistanceY", 0, 2, 0, 1, 13.0))
pocket3 = doc.addObject("PartDesign::Pocket", "Pocket002")
body.addObject(pocket3)
pocket3.Profile = sketch12
pocket3.Length = 4

doc.recompute()
